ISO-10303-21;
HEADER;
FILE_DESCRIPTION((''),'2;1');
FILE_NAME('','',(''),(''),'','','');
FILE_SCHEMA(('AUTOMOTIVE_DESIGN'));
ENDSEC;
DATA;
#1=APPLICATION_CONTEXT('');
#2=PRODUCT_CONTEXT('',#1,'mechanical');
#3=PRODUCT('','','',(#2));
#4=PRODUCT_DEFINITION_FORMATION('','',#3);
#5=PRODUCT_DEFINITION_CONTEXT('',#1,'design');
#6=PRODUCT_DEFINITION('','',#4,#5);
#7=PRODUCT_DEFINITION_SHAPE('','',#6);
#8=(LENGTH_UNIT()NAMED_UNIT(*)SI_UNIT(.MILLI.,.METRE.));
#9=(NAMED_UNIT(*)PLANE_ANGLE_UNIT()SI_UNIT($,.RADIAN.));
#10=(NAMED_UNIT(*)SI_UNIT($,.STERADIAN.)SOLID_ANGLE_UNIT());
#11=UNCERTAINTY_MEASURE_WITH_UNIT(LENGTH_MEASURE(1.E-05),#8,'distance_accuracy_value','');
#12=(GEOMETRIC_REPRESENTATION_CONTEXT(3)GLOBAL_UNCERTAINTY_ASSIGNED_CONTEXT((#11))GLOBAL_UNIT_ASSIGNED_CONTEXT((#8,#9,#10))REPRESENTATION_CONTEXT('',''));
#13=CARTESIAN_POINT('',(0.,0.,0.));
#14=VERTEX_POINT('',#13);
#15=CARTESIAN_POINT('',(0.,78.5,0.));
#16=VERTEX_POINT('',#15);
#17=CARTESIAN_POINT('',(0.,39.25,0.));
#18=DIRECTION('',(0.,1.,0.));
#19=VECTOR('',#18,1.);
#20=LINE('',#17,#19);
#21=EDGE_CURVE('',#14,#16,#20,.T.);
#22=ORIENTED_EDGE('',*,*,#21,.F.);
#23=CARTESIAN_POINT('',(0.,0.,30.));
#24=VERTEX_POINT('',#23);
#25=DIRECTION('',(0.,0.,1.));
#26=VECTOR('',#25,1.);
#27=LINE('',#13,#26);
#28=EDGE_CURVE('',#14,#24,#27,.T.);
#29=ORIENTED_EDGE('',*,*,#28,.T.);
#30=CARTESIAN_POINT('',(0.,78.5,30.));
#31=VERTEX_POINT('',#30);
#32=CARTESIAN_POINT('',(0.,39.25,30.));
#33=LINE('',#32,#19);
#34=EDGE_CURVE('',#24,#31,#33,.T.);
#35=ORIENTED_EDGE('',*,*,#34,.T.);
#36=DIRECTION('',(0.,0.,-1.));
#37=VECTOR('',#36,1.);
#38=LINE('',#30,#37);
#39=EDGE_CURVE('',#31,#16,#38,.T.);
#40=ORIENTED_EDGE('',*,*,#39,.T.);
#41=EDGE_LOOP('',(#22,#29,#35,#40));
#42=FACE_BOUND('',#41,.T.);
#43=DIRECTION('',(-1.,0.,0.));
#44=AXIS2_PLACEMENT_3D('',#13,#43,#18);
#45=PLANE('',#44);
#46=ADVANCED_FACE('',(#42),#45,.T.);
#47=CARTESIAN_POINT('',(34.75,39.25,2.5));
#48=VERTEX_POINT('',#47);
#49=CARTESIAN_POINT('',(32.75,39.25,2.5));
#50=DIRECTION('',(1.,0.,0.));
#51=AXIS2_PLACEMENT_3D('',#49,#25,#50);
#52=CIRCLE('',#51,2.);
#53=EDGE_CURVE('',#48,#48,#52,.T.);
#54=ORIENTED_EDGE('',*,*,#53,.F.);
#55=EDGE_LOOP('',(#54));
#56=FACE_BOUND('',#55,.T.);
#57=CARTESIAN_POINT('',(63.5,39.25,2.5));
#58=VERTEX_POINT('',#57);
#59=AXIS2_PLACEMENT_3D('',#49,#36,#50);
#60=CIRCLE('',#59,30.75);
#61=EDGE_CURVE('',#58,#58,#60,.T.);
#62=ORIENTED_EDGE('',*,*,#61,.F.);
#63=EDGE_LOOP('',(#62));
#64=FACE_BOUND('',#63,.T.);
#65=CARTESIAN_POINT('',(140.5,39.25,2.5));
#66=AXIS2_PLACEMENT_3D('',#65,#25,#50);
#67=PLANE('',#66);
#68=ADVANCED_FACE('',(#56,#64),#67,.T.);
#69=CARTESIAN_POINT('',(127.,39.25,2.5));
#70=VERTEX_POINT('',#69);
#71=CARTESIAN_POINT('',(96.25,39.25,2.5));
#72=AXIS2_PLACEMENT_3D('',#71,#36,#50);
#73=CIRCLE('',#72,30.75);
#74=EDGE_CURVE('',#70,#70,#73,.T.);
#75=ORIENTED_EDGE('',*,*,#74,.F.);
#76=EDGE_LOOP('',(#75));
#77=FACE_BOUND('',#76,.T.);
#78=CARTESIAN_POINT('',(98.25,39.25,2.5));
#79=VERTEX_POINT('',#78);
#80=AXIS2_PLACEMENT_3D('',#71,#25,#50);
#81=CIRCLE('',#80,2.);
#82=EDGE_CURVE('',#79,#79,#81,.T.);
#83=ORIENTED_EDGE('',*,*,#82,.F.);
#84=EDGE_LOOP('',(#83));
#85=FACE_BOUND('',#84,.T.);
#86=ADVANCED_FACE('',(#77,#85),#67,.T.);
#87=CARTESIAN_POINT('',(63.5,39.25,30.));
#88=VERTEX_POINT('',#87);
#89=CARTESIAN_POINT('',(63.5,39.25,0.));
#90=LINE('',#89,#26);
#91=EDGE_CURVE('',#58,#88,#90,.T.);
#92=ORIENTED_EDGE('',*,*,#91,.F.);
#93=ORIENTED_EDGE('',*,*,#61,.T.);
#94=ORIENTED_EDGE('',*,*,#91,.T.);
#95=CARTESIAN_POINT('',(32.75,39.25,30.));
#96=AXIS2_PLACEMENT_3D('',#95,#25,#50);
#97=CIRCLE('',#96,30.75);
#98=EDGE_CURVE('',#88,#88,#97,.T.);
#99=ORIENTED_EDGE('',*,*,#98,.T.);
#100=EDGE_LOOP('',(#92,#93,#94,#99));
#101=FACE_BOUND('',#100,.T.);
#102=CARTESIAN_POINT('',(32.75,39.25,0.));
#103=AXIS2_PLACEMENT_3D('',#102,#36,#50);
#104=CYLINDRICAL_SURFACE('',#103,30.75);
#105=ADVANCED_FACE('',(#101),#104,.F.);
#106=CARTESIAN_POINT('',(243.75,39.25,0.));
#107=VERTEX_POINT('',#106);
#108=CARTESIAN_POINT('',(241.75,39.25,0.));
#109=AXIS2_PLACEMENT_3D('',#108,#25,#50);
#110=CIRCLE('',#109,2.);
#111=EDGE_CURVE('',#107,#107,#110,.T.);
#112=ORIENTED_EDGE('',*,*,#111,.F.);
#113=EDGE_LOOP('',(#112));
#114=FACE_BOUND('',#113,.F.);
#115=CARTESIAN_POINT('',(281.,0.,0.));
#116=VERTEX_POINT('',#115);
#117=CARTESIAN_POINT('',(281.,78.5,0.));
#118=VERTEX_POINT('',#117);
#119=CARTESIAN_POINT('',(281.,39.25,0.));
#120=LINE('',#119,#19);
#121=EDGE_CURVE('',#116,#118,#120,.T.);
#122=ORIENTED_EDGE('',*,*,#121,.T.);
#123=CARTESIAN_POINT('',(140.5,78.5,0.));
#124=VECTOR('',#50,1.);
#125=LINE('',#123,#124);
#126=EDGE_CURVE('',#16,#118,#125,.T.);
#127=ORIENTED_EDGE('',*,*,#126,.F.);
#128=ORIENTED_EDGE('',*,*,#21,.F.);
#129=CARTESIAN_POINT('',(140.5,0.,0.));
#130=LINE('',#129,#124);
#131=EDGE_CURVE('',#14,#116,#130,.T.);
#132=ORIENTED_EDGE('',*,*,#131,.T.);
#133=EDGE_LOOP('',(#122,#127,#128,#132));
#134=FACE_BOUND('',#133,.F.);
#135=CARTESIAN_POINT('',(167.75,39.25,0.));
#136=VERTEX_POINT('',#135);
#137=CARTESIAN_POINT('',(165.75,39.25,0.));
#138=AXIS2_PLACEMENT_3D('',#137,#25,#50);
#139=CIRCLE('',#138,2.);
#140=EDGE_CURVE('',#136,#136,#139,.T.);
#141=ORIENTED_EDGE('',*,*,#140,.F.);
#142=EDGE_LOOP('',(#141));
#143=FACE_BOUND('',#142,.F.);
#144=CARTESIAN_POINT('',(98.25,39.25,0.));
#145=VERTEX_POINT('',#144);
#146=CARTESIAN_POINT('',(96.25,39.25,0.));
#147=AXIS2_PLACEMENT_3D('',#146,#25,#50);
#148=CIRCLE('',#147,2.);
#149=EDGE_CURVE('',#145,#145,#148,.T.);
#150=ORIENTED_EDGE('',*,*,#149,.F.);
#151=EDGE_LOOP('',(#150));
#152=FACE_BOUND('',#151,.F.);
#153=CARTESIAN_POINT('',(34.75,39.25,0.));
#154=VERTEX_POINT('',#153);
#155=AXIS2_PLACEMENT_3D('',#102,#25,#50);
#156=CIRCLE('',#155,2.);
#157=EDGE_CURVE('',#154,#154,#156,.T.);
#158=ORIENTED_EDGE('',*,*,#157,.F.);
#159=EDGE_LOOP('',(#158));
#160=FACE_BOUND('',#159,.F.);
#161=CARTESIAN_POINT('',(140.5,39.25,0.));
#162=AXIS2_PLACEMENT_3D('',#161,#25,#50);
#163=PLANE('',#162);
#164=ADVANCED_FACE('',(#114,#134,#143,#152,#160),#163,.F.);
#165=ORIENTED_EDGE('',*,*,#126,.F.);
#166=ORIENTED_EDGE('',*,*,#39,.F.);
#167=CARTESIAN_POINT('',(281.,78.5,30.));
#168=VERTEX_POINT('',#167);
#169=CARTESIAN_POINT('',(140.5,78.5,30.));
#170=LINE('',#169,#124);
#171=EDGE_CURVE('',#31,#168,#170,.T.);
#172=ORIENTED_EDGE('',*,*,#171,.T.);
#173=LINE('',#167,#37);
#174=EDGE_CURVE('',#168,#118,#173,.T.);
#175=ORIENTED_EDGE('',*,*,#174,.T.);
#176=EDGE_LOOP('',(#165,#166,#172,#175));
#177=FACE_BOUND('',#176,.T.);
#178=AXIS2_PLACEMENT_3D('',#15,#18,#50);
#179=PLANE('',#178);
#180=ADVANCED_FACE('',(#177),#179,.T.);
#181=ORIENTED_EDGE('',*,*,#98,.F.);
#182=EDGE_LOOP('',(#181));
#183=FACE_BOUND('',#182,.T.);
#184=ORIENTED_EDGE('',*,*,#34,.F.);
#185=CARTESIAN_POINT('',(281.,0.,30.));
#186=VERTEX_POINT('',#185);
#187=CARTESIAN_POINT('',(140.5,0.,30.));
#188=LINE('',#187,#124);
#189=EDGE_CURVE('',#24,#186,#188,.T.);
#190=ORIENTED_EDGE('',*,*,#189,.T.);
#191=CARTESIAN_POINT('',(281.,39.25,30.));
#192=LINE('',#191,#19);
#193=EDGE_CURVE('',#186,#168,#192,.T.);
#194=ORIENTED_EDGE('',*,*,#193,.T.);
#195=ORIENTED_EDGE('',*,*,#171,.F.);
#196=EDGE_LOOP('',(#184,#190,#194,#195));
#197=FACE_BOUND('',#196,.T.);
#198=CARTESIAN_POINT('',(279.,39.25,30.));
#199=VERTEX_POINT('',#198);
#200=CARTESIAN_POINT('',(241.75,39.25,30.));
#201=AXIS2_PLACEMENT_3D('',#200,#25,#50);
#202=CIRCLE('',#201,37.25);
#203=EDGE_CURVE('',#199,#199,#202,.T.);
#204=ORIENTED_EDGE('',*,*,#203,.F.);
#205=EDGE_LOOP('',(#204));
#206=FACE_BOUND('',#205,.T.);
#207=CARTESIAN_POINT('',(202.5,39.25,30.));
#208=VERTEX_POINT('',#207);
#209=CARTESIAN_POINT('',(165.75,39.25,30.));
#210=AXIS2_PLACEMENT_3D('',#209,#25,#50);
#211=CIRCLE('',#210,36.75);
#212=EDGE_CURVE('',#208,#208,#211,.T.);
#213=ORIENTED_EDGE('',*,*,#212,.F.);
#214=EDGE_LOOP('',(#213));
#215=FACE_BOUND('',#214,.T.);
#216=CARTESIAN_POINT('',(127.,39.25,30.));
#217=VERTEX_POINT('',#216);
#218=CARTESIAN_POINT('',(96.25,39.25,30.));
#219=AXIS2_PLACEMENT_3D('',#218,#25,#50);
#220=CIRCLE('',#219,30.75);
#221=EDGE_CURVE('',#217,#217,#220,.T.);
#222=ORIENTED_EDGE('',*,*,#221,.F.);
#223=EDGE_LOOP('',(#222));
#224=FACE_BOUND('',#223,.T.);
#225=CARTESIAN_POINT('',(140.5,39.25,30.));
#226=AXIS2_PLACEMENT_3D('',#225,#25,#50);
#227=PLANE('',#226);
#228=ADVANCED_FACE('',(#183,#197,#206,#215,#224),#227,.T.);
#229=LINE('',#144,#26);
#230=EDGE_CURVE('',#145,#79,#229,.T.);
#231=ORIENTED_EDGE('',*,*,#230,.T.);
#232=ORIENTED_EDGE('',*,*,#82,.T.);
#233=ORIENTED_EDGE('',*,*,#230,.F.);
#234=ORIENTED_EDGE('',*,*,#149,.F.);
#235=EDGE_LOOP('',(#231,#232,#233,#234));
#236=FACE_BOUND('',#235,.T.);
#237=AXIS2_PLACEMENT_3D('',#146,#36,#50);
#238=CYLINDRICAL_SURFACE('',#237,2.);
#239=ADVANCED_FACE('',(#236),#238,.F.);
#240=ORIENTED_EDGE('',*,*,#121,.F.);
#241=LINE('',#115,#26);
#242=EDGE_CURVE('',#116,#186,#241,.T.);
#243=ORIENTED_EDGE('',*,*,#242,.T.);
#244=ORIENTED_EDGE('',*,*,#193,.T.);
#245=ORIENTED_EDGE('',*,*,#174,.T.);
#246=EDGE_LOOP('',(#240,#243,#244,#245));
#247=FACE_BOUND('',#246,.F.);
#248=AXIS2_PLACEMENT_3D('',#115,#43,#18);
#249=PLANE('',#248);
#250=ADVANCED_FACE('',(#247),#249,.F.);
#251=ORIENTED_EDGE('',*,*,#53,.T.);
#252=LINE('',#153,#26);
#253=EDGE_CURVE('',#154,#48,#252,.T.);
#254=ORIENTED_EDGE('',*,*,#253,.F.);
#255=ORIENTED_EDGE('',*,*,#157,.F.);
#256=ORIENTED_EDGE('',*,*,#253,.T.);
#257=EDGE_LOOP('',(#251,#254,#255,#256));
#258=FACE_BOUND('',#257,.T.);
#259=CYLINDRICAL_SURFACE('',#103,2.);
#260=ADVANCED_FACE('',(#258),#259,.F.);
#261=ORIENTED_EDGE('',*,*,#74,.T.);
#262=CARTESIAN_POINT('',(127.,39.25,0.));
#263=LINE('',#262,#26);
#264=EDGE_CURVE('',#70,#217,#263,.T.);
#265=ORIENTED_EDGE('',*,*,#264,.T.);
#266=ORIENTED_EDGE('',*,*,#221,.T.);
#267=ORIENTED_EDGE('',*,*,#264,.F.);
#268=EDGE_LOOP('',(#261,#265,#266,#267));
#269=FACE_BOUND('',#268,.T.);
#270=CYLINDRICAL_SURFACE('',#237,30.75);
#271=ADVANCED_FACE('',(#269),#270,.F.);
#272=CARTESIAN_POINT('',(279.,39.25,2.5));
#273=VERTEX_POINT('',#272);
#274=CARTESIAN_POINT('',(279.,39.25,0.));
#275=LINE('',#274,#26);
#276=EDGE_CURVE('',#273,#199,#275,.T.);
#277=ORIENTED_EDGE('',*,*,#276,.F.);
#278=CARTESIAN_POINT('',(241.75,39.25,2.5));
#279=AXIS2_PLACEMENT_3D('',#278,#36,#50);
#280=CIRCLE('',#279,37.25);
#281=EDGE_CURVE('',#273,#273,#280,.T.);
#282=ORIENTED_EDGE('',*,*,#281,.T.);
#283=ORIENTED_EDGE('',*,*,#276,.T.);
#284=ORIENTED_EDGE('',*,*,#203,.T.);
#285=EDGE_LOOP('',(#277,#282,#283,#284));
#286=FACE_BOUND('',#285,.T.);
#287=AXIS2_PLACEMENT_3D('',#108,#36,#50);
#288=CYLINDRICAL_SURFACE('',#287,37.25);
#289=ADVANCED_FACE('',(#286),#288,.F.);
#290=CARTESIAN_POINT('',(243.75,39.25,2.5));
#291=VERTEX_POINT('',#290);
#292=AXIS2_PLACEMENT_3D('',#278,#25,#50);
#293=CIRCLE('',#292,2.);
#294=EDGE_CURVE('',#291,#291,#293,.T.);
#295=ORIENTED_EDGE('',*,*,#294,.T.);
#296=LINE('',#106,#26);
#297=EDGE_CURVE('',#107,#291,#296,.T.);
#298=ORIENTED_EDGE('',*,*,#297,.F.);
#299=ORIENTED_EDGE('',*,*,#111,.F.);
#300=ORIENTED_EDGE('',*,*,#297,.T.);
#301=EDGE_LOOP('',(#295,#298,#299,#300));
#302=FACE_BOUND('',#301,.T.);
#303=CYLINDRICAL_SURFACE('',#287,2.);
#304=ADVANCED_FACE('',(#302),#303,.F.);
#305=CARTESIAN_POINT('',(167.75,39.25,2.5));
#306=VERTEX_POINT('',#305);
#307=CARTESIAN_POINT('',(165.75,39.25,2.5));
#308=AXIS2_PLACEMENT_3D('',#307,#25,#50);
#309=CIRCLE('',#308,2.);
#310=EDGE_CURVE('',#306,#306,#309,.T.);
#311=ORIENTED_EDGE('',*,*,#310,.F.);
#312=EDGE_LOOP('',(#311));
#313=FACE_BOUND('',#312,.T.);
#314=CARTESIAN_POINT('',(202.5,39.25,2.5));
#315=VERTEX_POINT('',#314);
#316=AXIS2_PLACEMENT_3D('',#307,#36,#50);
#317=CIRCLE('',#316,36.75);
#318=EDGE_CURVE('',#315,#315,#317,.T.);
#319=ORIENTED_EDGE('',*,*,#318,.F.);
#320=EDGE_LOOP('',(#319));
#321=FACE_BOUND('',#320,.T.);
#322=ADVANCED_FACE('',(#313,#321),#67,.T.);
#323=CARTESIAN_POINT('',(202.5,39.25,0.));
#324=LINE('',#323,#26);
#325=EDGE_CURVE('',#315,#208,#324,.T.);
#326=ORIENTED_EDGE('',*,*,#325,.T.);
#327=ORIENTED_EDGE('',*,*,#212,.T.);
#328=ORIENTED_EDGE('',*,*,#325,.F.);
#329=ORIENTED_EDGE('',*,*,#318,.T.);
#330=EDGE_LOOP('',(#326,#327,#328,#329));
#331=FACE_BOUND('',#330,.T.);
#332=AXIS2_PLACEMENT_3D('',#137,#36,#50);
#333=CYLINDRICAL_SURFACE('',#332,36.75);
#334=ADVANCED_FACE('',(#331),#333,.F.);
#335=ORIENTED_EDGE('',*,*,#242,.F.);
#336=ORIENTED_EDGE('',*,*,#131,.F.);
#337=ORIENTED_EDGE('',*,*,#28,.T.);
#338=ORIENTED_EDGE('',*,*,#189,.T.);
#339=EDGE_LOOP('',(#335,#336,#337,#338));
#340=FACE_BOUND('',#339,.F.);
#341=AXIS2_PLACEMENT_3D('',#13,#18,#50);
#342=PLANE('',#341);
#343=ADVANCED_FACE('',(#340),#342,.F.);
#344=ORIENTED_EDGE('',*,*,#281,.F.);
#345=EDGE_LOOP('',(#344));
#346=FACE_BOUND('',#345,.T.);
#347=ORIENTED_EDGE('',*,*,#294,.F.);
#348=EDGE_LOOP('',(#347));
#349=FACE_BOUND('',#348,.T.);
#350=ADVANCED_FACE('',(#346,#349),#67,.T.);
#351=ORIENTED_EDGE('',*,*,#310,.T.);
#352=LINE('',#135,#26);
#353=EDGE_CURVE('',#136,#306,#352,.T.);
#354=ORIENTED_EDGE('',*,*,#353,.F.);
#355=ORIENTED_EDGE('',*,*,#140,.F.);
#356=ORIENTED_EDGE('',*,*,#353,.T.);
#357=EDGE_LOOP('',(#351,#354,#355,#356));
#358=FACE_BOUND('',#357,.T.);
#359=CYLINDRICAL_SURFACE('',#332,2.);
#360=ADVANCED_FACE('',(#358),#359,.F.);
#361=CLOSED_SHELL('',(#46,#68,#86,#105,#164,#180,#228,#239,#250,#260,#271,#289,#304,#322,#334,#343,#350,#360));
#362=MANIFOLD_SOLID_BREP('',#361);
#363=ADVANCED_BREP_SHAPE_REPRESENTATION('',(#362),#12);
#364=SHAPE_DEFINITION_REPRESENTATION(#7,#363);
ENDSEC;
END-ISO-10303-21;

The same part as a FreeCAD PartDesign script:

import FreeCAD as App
import Part
import Sketcher
from FreeCAD import Vector
Q = App.Units.Quantity


def add_polygon(sketch, points):
    """Adds a closed chain of lines whose ends are joined by coincident constraints."""
    first, n = sketch.GeometryCount, len(points)
    for a, b in zip(points, points[1:] + points[:1]):
        sketch.addGeometry(Part.LineSegment(App.Vector(*a, 0), App.Vector(*b, 0)), False)
    for i in range(n):
        sketch.addConstraint(Sketcher.Constraint("Coincident", first + i, 2, first + (i + 1) % n, 1))

doc = App.newDocument("Part")
params = doc.addObject("Spreadsheet::Sheet", "Params")
for row, (alias, value) in enumerate([
    ("sketch1_diameter", "4 mm"),
    ("sketch1_width", "281 mm"),
    ("sketch1_height", "78.5 mm"),
    ("pad1_length", "2.5 mm"),
    ("sketch2_diameter", "61.5 mm"),
    ("sketch2_diameter2", "73.5 mm"),
    ("sketch2_diameter3", "74.5 mm"),
    ("sketch2_width", "281 mm"),
    ("sketch2_height", "78.5 mm"),
    ("pad2_length", "30 mm"),
], start=1):
    params.set(f"A{row}", alias)
    params.set(f"B{row}", "=" + value)
    params.setAlias(f"B{row}", alias)

body = doc.addObject("PartDesign::Body", "Body")

sketch1 = doc.addObject("Sketcher::SketchObject", "Sketch")
body.addObject(sketch1)
sketch1.AttachmentSupport = (doc.XY_Plane, [""])
sketch1.MapMode = "FlatFace"
add_polygon(sketch1, [(0, 78.5), (0, 0), (281, 0), (281, 78.5)])
sketch1.addGeometry(Part.Circle(Vector(32.75, 39.25, 0), Vector(0, 0, 1), 2), False)
sketch1.addGeometry(Part.Circle(Vector(96.25, 39.25, 0), Vector(0, 0, 1), 2), False)
sketch1.addGeometry(Part.Circle(Vector(165.75, 39.25, 0), Vector(0, 0, 1), 2), False)
sketch1.addGeometry(Part.Circle(Vector(241.75, 39.25, 0), Vector(0, 0, 1), 2), False)
sketch1.addConstraint([
    Sketcher.Constraint("Vertical", 0),
    Sketcher.Constraint("Horizontal", 1),
    Sketcher.Constraint("Vertical", 2),
    Sketcher.Constraint("Horizontal", 3),
    Sketcher.Constraint("Coincident", 0, 2, -1, 1),
    Sketcher.Constraint("Equal", 4, 5),
    Sketcher.Constraint("Equal", 5, 6),
    Sketcher.Constraint("Equal", 6, 7),
    Sketcher.Constraint("Horizontal", 4, 3, 5, 3),
    Sketcher.Constraint("Horizontal", 5, 3, 6, 3),
    Sketcher.Constraint("Horizontal", 6, 3, 7, 3),
    Sketcher.Constraint("Diameter", 4, Q("4 mm")),
    Sketcher.Constraint("DistanceX", 1, 1, 1, 2, Q("281 mm")),
    Sketcher.Constraint("DistanceY", 0, 2, 0, 1, Q("78.5 mm")),
    Sketcher.Constraint("DistanceX", 4, 3, 6, 3, Q("133 mm")),
    Sketcher.Constraint("DistanceX", 6, 3, 7, 3, Q("76 mm")),
    Sketcher.Constraint("DistanceX", 4, 3, 5, 3, Q("63.5 mm")),
    Sketcher.Constraint("DistanceX", -1, 1, 4, 3, Q("32.75 mm")),
    Sketcher.Constraint("DistanceY", -1, 1, 4, 3, Q("39.25 mm")),
])
sketch1.setExpression("Constraints[15]", "Params.sketch1_diameter")
sketch1.setExpression("Constraints[16]", "Params.sketch1_width")
sketch1.setExpression("Constraints[17]", "Params.sketch1_height")
pad1 = doc.addObject("PartDesign::Pad", "Pad")
body.addObject(pad1)
pad1.Profile = sketch1
pad1.setExpression("Length", "Params.pad1_length")

sketch2 = doc.addObject("Sketcher::SketchObject", "Sketch001")
body.addObject(sketch2)
sketch2.AttachmentSupport = (doc.XY_Plane, [""])
sketch2.MapMode = "FlatFace"
add_polygon(sketch2, [(0, 78.5), (0, 0), (281, 0), (281, 78.5)])
sketch2.addGeometry(Part.Circle(Vector(32.75, 39.25, 0), Vector(0, 0, 1), 30.75), False)
sketch2.addGeometry(Part.Circle(Vector(96.25, 39.25, 0), Vector(0, 0, 1), 30.75), False)
sketch2.addGeometry(Part.Circle(Vector(165.75, 39.25, 0), Vector(0, 0, 1), 36.75), False)
sketch2.addGeometry(Part.Circle(Vector(241.75, 39.25, 0), Vector(0, 0, 1), 37.25), False)
sketch2.addConstraint([
    Sketcher.Constraint("Vertical", 0),
    Sketcher.Constraint("Horizontal", 1),
    Sketcher.Constraint("Vertical", 2),
    Sketcher.Constraint("Horizontal", 3),
    Sketcher.Constraint("Coincident", 0, 2, -1, 1),
    Sketcher.Constraint("Equal", 4, 5),
    Sketcher.Constraint("Horizontal", 4, 3, 5, 3),
    Sketcher.Constraint("Horizontal", 5, 3, 6, 3),
    Sketcher.Constraint("Horizontal", 6, 3, 7, 3),
    Sketcher.Constraint("Diameter", 4, Q("61.5 mm")),
    Sketcher.Constraint("Diameter", 6, Q("73.5 mm")),
    Sketcher.Constraint("Diameter", 7, Q("74.5 mm")),
    Sketcher.Constraint("DistanceX", 1, 1, 1, 2, Q("281 mm")),
    Sketcher.Constraint("DistanceY", 0, 2, 0, 1, Q("78.5 mm")),
    Sketcher.Constraint("DistanceX", 4, 3, 6, 3, Q("133 mm")),
    Sketcher.Constraint("DistanceX", 6, 3, 7, 3, Q("76 mm")),
    Sketcher.Constraint("DistanceX", 4, 3, 5, 3, Q("63.5 mm")),
    Sketcher.Constraint("DistanceX", -1, 1, 4, 3, Q("32.75 mm")),
    Sketcher.Constraint("DistanceY", -1, 1, 4, 3, Q("39.25 mm")),
])
sketch2.setExpression("Constraints[13]", "Params.sketch2_diameter")
sketch2.setExpression("Constraints[14]", "Params.sketch2_diameter2")
sketch2.setExpression("Constraints[15]", "Params.sketch2_diameter3")
sketch2.setExpression("Constraints[16]", "Params.sketch2_width")
sketch2.setExpression("Constraints[17]", "Params.sketch2_height")
pad2 = doc.addObject("PartDesign::Pad", "Pad001")
body.addObject(pad2)
pad2.Profile = sketch2
pad2.setExpression("Length", "Params.pad2_length")

doc.recompute()
